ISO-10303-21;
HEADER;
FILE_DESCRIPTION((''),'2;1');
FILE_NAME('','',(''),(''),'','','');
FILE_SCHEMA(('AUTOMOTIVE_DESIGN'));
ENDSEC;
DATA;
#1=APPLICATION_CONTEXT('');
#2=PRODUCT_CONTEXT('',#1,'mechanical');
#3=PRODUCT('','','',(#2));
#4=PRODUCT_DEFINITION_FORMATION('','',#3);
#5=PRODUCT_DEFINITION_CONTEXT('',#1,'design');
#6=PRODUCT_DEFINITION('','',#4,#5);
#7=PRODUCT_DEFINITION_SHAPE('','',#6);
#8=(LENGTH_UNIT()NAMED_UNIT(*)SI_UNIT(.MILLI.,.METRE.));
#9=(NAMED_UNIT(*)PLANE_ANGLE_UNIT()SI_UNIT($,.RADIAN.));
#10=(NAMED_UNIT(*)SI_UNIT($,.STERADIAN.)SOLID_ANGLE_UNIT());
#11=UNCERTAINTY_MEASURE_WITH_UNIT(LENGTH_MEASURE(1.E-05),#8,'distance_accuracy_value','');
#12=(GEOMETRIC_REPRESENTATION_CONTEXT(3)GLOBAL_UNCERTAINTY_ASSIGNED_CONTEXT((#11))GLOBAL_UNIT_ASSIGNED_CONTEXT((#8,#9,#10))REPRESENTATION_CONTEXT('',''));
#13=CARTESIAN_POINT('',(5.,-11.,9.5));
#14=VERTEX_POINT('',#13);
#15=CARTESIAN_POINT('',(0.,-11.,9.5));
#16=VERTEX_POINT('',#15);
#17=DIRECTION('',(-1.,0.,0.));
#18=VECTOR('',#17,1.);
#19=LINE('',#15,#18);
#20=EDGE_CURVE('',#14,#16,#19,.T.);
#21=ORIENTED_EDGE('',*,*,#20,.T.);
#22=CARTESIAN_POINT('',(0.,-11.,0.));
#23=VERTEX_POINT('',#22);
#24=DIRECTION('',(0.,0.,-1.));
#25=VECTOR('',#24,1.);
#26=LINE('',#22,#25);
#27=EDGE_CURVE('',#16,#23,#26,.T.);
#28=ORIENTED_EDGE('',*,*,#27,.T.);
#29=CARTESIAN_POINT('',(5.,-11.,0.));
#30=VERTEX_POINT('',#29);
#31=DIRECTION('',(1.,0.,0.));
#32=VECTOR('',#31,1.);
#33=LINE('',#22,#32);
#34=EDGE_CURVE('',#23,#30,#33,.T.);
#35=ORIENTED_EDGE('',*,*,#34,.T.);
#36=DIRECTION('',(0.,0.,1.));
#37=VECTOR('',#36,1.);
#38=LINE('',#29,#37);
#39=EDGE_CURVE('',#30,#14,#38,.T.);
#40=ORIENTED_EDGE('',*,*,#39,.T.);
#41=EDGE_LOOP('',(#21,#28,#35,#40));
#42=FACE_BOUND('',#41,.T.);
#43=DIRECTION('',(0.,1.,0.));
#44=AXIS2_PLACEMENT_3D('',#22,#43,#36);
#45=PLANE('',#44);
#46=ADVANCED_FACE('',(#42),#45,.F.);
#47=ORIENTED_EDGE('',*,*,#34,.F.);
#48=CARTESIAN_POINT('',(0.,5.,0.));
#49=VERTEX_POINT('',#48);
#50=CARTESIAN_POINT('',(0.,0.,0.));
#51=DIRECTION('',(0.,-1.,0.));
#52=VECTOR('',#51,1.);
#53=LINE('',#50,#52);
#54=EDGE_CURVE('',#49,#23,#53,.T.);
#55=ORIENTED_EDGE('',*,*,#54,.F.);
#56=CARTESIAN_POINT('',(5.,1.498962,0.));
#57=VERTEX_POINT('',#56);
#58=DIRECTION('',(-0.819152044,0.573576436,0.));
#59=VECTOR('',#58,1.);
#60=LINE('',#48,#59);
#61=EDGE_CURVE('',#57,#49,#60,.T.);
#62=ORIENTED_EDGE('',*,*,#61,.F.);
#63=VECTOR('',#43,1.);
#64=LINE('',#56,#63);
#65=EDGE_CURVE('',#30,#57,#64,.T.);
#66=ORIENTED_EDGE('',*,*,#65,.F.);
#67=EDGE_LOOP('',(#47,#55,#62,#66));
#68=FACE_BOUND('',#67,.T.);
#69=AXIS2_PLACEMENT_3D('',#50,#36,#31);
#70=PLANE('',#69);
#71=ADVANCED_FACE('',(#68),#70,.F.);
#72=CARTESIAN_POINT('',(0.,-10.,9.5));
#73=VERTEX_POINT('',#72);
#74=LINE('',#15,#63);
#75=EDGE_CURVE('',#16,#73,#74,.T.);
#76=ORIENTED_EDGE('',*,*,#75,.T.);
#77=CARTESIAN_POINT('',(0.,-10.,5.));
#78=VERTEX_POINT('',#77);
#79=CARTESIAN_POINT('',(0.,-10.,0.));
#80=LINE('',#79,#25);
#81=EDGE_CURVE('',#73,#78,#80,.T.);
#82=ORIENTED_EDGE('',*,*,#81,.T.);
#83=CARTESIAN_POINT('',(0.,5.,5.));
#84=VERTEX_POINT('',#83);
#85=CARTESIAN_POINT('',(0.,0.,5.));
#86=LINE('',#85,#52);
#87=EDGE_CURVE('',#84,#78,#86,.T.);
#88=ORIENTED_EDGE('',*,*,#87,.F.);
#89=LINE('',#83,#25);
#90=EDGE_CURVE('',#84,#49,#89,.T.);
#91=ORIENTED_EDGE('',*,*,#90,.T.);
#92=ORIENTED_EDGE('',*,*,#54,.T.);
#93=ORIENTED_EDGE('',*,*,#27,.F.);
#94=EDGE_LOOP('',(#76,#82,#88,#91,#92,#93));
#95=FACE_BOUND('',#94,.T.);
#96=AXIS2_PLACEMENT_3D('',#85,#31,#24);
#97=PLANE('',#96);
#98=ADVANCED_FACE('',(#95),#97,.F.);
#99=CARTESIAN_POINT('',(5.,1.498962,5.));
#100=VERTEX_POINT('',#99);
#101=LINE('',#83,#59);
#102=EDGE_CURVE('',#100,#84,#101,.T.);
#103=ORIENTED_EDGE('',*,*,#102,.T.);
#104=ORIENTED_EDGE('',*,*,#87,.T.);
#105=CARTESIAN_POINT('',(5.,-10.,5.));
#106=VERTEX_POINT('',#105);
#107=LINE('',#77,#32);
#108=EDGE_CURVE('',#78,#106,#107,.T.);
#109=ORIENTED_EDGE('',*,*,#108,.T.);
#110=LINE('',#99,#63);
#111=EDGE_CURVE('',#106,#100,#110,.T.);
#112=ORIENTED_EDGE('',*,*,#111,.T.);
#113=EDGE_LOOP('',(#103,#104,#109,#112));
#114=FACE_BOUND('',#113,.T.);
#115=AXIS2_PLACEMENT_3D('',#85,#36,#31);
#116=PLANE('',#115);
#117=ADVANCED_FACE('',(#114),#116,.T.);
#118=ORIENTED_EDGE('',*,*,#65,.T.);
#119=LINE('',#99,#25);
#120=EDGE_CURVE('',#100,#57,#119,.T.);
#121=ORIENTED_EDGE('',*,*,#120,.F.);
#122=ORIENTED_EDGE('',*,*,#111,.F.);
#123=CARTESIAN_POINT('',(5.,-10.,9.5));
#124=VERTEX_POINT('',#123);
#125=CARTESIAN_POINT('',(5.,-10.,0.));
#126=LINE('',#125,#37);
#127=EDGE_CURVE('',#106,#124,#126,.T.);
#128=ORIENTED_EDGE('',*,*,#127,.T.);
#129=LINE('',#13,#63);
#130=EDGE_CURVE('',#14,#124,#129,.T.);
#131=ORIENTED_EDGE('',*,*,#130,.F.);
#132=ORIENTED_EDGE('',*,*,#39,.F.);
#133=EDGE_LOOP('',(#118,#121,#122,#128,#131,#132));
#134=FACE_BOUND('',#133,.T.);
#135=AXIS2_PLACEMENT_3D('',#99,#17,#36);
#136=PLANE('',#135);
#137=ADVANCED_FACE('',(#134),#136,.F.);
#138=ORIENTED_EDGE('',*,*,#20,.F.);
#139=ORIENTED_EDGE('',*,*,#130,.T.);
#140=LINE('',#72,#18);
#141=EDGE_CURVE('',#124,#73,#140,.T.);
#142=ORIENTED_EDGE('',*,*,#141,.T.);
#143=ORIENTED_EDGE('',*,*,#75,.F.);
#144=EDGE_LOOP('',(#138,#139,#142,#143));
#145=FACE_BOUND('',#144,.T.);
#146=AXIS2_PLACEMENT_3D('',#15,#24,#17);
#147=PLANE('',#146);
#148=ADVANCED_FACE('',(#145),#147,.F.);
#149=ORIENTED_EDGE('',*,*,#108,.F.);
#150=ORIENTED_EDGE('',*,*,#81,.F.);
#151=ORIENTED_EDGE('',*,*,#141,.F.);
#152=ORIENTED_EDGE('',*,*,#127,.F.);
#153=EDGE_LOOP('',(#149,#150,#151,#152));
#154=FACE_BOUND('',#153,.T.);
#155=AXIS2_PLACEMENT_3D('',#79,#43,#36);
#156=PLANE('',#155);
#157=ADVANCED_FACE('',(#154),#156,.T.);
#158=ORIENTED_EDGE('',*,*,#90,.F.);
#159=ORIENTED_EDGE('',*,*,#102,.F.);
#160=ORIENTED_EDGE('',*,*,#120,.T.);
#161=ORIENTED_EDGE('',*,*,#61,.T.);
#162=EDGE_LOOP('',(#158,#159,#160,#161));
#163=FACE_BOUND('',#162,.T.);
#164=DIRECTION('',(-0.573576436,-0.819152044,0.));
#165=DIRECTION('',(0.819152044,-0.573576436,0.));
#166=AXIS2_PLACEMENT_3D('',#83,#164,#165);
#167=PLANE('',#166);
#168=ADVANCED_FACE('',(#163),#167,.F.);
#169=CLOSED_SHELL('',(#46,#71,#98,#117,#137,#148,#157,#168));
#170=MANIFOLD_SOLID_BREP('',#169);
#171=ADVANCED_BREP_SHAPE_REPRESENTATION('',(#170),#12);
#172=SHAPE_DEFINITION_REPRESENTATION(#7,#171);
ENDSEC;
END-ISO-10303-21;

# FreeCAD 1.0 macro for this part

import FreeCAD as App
import Part
import Sketcher
Q = App.Units.Quantity


def add_polygon(sketch, points):
    """Adds a closed chain of lines whose ends are joined by coincident constraints."""
    first, n = sketch.GeometryCount, len(points)
    for a, b in zip(points, points[1:] + points[:1]):
        sketch.addGeometry(Part.LineSegment(App.Vector(*a, 0), App.Vector(*b, 0)), False)
    for i in range(n):
        sketch.addConstraint(Sketcher.Constraint("Coincident", first + i, 2, first + (i + 1) % n, 1))

doc = App.newDocument("Part")
params = doc.addObject("Spreadsheet::Sheet", "Params")
for row, (alias, value) in enumerate([
    ("sketch1_width", "5 mm"),
    ("sketch1_height", "15 mm"),
    ("pad1_length", "5 mm"),
    ("sketch2_width", "5 mm"),
    ("sketch2_height", "9.5 mm"),
    ("pad2_length", "1 mm"),
], start=1):
    params.set(f"A{row}", alias)
    params.set(f"B{row}", "=" + value)
    params.setAlias(f"B{row}", alias)

body = doc.addObject("PartDesign::Body", "Body")

# Sketch on XY plane
sketch1 = body.newObject("Sketcher::SketchObject", "Sketch")
sketch1.AttachmentSupport = (doc.getObject("XY_Plane"), [""])
sketch1.MapMode = "FlatFace"
add_polygon(sketch1, [(0, 5), (0, -10), (5, -10), (5, 1.498962)])  # lines 0-3
sketch1.addConstraint([
    Sketcher.Constraint("Vertical", 0),
    Sketcher.Constraint("Horizontal", 1),
    Sketcher.Constraint("Vertical", 2),
    Sketcher.Constraint("PointOnObject", 0, 2, -2),
    Sketcher.Constraint("DistanceX", 1, 1, 1, 2, Q("5 mm")),
    Sketcher.Constraint("DistanceY", 0, 2, 0, 1, Q("15 mm")),
    Sketcher.Constraint("Angle", 3, Q("145 deg")),
    Sketcher.Constraint("DistanceY", 0, 2, -1, 1, Q("10 mm")),
])
sketch1.setExpression("Constraints[8]", "Params.sketch1_width")
sketch1.setExpression("Constraints[9]", "Params.sketch1_height")
pad1 = body.newObject("PartDesign::Pad", "Pad")
pad1.Profile = sketch1
pad1.setExpression("Length", "Params.pad1_length")

# Sketch on XZ plane
sketch2 = body.newObject("Sketcher::SketchObject", "Sketch001")
sketch2.AttachmentSupport = (doc.getObject("XZ_Plane"), [""])
sketch2.MapMode = "FlatFace"
sketch2.AttachmentOffset = App.Placement(App.Vector(0, 0, 10), App.Rotation())
add_polygon(sketch2, [(0, 9.5), (0, 0), (5, 0), (5, 9.5)])  # lines 0-3
sketch2.addConstraint([
    Sketcher.Constraint("Vertical", 0),
    Sketcher.Constraint("Horizontal", 1),
    Sketcher.Constraint("Vertical", 2),
    Sketcher.Constraint("Horizontal", 3),
    Sketcher.Constraint("Coincident", 0, 2, -1, 1),
    Sketcher.Constraint("DistanceX", 1, 1, 1, 2, Q("5 mm")),
    Sketcher.Constraint("DistanceY", 0, 2, 0, 1, Q("9.5 mm")),
])
sketch2.setExpression("Constraints[9]", "Params.sketch2_width")
sketch2.setExpression("Constraints[10]", "Params.sketch2_height")
pad2 = body.newObject("PartDesign::Pad", "Pad001")
pad2.Profile = sketch2
pad2.setExpression("Length", "Params.pad2_length")

doc.recompute()
